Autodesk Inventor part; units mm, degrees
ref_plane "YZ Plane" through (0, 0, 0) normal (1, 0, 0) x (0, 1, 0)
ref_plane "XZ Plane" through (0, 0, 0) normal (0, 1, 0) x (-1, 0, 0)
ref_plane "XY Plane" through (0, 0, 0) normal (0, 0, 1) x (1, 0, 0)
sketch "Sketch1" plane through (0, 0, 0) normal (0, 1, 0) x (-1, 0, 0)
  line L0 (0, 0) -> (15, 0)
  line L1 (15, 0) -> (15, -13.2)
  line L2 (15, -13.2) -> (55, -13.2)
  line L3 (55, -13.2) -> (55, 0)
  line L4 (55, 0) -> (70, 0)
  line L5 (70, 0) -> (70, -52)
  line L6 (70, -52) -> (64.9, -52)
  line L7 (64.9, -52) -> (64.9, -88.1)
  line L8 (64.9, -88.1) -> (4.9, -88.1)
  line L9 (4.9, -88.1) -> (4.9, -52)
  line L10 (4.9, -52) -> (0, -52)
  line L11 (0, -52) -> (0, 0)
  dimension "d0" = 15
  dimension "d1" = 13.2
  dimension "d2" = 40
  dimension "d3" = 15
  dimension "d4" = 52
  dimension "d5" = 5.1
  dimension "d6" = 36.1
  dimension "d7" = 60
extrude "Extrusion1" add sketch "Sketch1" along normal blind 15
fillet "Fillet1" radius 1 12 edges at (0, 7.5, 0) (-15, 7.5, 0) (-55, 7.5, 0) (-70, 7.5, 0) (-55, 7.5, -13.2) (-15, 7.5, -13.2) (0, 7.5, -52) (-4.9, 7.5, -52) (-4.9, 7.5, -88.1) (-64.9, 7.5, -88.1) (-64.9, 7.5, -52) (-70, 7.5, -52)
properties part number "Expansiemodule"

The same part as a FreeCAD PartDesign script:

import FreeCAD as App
import Part
import Sketcher
from FreeCAD import Vector
Q = App.Units.Quantity


def edges_at(feature, points):
    """Names of the edges that pass closest to the given points."""
    edges = feature.Shape.Edges
    near = lambda p: min(range(len(edges)), key=lambda i: edges[i].distToShape(Part.Vertex(*p))[0])
    return sorted({f"Edge{near(p) + 1}" for p in points})

doc = App.newDocument("Part")
body = doc.addObject("PartDesign::Body", "Body")

sketch1 = body.newObject("Sketcher::SketchObject", "Sketch")
sketch1.AttachmentSupport = (doc.getObject("XZ_Plane"), [""])
sketch1.MapMode = "FlatFace"
sketch1.addGeometry([
    Part.LineSegment(Vector(-15, 0, 0), Vector(0, 0, 0)),
    Part.LineSegment(Vector(0, 0, 0), Vector(0, -52, 0)),
    Part.LineSegment(Vector(0, -52, 0), Vector(-4.9, -52, 0)),
    Part.LineSegment(Vector(-4.9, -52, 0), Vector(-4.9, -88.1, 0)),
    Part.LineSegment(Vector(-4.9, -88.1, 0), Vector(-64.9, -88.1, 0)),
    Part.LineSegment(Vector(-64.9, -88.1, 0), Vector(-64.9, -52, 0)),
    Part.LineSegment(Vector(-64.9, -52, 0), Vector(-70, -52, 0)),
    Part.LineSegment(Vector(-70, -52, 0), Vector(-70, 0, 0)),
    Part.LineSegment(Vector(-70, 0, 0), Vector(-55, 0, 0)),
    Part.LineSegment(Vector(-55, 0, 0), Vector(-55, -13.2, 0)),
    Part.LineSegment(Vector(-55, -13.2, 0), Vector(-15, -13.2, 0)),
    Part.LineSegment(Vector(-15, -13.2, 0), Vector(-15, 0, 0)),
], False)
sketch1.addConstraint([
    Sketcher.Constraint("Coincident", 0, 2, 1, 1),
    Sketcher.Constraint("Coincident", 1, 2, 2, 1),
    Sketcher.Constraint("Coincident", 2, 2, 3, 1),
    Sketcher.Constraint("Coincident", 3, 2, 4, 1),
    Sketcher.Constraint("Coincident", 4, 2, 5, 1),
    Sketcher.Constraint("Coincident", 5, 2, 6, 1),
    Sketcher.Constraint("Coincident", 6, 2, 7, 1),
    Sketcher.Constraint("Coincident", 7, 2, 8, 1),
    Sketcher.Constraint("Coincident", 8, 2, 9, 1),
    Sketcher.Constraint("Coincident", 9, 2, 10, 1),
    Sketcher.Constraint("Coincident", 10, 2, 11, 1),
    Sketcher.Constraint("Coincident", 11, 2, 0, 1),
    Sketcher.Constraint("Horizontal", 0),
    Sketcher.Constraint("Vertical", 1),
    Sketcher.Constraint("Horizontal", 2),
    Sketcher.Constraint("Vertical", 3),
    Sketcher.Constraint("Horizontal", 4),
    Sketcher.Constraint("Vertical", 5),
    Sketcher.Constraint("Horizontal", 6),
    Sketcher.Constraint("Vertical", 7),
    Sketcher.Constraint("Horizontal", 8),
    Sketcher.Constraint("Vertical", 9),
    Sketcher.Constraint("Horizontal", 10),
    Sketcher.Constraint("Vertical", 11),
    Sketcher.Constraint("Coincident", 0, 2, -1, 1),
    Sketcher.Constraint("PointOnObject", 7, 2, -1),
    Sketcher.Constraint("Horizontal", 2, 2, 5, 2),
    Sketcher.Constraint("Equal", 0, 8),
    Sketcher.Constraint("DistanceX", 0, 1, 0, 2, Q("15 mm")),
    Sketcher.Constraint("DistanceX", 4, 2, 4, 1, Q("60 mm")),
    Sketcher.Constraint("DistanceX", 10, 1, 10, 2, Q("40 mm")),
    Sketcher.Constraint("DistanceY", 1, 2, 1, 1, Q("52 mm")),
    Sketcher.Constraint("DistanceX", 6, 2, 6, 1, Q("5.1 mm")),
    Sketcher.Constraint("DistanceY", 3, 2, 3, 1, Q("36.1 mm")),
    Sketcher.Constraint("DistanceY", 9, 2, 9, 1, Q("13.2 mm")),
])
pad1 = body.newObject("PartDesign::Pad", "Pad")
pad1.Profile = sketch1
pad1.Length = 15
pad1.Reversed = True
doc.recompute()

fillet = body.newObject("PartDesign::Fillet", "Fillet")
fillet.Base = (pad1, edges_at(pad1, [
    (0, 7.5, 0),
    (-15, 7.5, 0),
    (-55, 7.5, 0),
    (-70, 7.5, 0),
    (-55, 7.5, -13.2),
    (-15, 7.5, -13.2),
    (0, 7.5, -52),
    (-4.9, 7.5, -52),
    (-4.9, 7.5, -88.1),
    (-64.9, 7.5, -88.1),
    (-64.9, 7.5, -52),
    (-70, 7.5, -52),
]))
fillet.Radius = 1

doc.recompute()
